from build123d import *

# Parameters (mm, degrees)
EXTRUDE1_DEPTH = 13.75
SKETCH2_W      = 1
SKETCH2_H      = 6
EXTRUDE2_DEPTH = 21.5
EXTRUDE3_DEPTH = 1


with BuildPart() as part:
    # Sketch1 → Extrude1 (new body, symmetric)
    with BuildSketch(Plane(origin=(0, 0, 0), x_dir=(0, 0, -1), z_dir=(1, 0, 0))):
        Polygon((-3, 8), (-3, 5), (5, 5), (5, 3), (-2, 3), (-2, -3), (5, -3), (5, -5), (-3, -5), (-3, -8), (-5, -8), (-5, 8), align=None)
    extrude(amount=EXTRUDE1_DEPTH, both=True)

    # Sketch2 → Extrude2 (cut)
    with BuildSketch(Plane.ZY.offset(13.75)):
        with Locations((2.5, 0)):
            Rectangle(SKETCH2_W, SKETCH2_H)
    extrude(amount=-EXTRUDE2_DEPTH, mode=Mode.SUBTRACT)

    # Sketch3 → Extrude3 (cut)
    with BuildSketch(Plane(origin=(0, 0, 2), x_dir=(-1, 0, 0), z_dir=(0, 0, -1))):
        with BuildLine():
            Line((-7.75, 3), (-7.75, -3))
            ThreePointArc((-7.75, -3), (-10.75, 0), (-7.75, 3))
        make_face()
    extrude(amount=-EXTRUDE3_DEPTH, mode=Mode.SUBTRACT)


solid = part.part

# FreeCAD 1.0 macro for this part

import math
import FreeCAD as App
import Part
import Sketcher

V = App.Vector

doc = App.newDocument("Part")
body = doc.addObject("PartDesign::Body", "Body")

# Sketch on YZ plane
sketch1 = body.newObject("Sketcher::SketchObject", "Sketch")
sketch1.AttachmentSupport = (doc.getObject("YZ_Plane"), [""])
sketch1.MapMode = "FlatFace"
sketch1.addGeometry([
    Part.LineSegment(V(5, 3, 0), V(8, 3, 0)),  # 0
    Part.LineSegment(V(8, 3, 0), V(8, 5, 0)),  # 1
    Part.LineSegment(V(8, 5, 0), V(-8, 5, 0)),  # 2
    Part.LineSegment(V(-8, 5, 0), V(-8, 3, 0)),  # 3
    Part.LineSegment(V(-8, 3, 0), V(-5, 3, 0)),  # 4
    Part.LineSegment(V(-5, 3, 0), V(-5, -5, 0)),  # 5
    Part.LineSegment(V(-5, -5, 0), V(-3, -5, 0)),  # 6
    Part.LineSegment(V(-3, -5, 0), V(-3, 2, 0)),  # 7
    Part.LineSegment(V(-3, 2, 0), V(3, 2, 0)),  # 8
    Part.LineSegment(V(3, 2, 0), V(3, -5, 0)),  # 9
    Part.LineSegment(V(3, -5, 0), V(5, -5, 0)),  # 10
    Part.LineSegment(V(5, -5, 0), V(5, 3, 0)),  # 11
], False)
sketch1.addConstraint([
    Sketcher.Constraint("Coincident", 0, 2, 1, 1),
    Sketcher.Constraint("Coincident", 1, 2, 2, 1),
    Sketcher.Constraint("Coincident", 2, 2, 3, 1),
    Sketcher.Constraint("Coincident", 3, 2, 4, 1),
    Sketcher.Constraint("Coincident", 4, 2, 5, 1),
    Sketcher.Constraint("Coincident", 5, 2, 6, 1),
    Sketcher.Constraint("Coincident", 6, 2, 7, 1),
    Sketcher.Constraint("Coincident", 7, 2, 8, 1),
    Sketcher.Constraint("Coincident", 8, 2, 9, 1),
    Sketcher.Constraint("Coincident", 9, 2, 10, 1),
    Sketcher.Constraint("Coincident", 10, 2, 11, 1),
    Sketcher.Constraint("Coincident", 11, 2, 0, 1),
    Sketcher.Constraint("Horizontal", 0),
    Sketcher.Constraint("Vertical", 1),
    Sketcher.Constraint("Horizontal", 2),
    Sketcher.Constraint("Vertical", 3),
    Sketcher.Constraint("Horizontal", 4),
    Sketcher.Constraint("Vertical", 5),
    Sketcher.Constraint("Horizontal", 6),
    Sketcher.Constraint("Vertical", 7),
    Sketcher.Constraint("Horizontal", 8),
    Sketcher.Constraint("Vertical", 9),
    Sketcher.Constraint("Horizontal", 10),
    Sketcher.Constraint("Vertical", 11),
    Sketcher.Constraint("Symmetric", 0, 2, 3, 2, -2),
    Sketcher.Constraint("Symmetric", 6, 2, 9, 2, -2),
    Sketcher.Constraint("Equal", 0, 4),
    Sketcher.Constraint("Equal", 10, 1),
    Sketcher.Constraint("DistanceX", 0, 1, 0, 2, 3.0),
    Sketcher.Constraint("DistanceX", 2, 2, 2, 1, 16.0),
    Sketcher.Constraint("DistanceX", 6, 1, 6, 2, 2.0),
    Sketcher.Constraint("DistanceY", 5, 2, 5, 1, 8.0),
    Sketcher.Constraint("DistanceY", 7, 1, 7, 2, 7.0),
    Sketcher.Constraint("DistanceY", -1, 1, 0, 2, 3.0),
])
pad1 = body.newObject("PartDesign::Pad", "Pad")
pad1.Profile = sketch1
pad1.Length = 27.5
pad1.Midplane = True

# Sketch on YZ plane
sketch2 = body.newObject("Sketcher::SketchObject", "Sketch001")
sketch2.AttachmentSupport = (doc.getObject("YZ_Plane"), [""])
sketch2.MapMode = "FlatFace"
sketch2.AttachmentOffset = App.Placement(V(0, 0, -13.75), App.Rotation())
sketch2.addGeometry([
    Part.LineSegment(V(3, 2, 0), V(-3, 2, 0)),
    Part.LineSegment(V(-3, 2, 0), V(-3, 3, 0)),
    Part.LineSegment(V(-3, 3, 0), V(3, 3, 0)),
    Part.LineSegment(V(3, 3, 0), V(3, 2, 0)),
], False)
sketch2.addConstraint([
    Sketcher.Constraint("Coincident", 0, 2, 1, 1),
    Sketcher.Constraint("Coincident", 1, 2, 2, 1),
    Sketcher.Constraint("Coincident", 2, 2, 3, 1),
    Sketcher.Constraint("Coincident", 3, 2, 0, 1),
    Sketcher.Constraint("Horizontal", 0),
    Sketcher.Constraint("Vertical", 1),
    Sketcher.Constraint("Horizontal", 2),
    Sketcher.Constraint("Vertical", 3),
    Sketcher.Constraint("DistanceX", 0, 2, 0, 1, 6.0),
    Sketcher.Constraint("DistanceY", 1, 1, 1, 2, 1.0),
    Sketcher.Constraint("DistanceX", 0, 2, -1, 1, 3.0),
    Sketcher.Constraint("DistanceY", -1, 1, 0, 2, 2.0),
])
pocket1 = body.newObject("PartDesign::Pocket", "Pocket")
pocket1.Profile = sketch2
pocket1.Length = 21.5
pocket1.Reversed = True

# Sketch on XY plane
sketch3 = body.newObject("Sketcher::SketchObject", "Sketch002")
sketch3.AttachmentSupport = (doc.getObject("XY_Plane"), [""])
sketch3.MapMode = "FlatFace"
sketch3.AttachmentOffset = App.Placement(V(0, 0, 2), App.Rotation())
sketch3.addGeometry([
    Part.LineSegment(V(7.8, -3, 0), V(7.8, 3, 0)),
    Part.ArcOfCircle(Part.Circle(V(7.8, 0, 0), V(0, 0, 1), 3), math.radians(-90), math.radians(90)),
], False)
sketch3.addConstraint([
    Sketcher.Constraint("Coincident", 0, 1, 1, 1),
    Sketcher.Constraint("Coincident", 1, 2, 0, 2),
    Sketcher.Constraint("Vertical", 0),
    Sketcher.Constraint("PointOnObject", 1, 3, -1),
    Sketcher.Constraint("Vertical", 1, 3, 0, 1),
    Sketcher.Constraint("Radius", 1, 3.0),
    Sketcher.Constraint("DistanceX", -1, 1, 1, 3, 7.75),
])
pocket2 = body.newObject("PartDesign::Pocket", "Pocket001")
pocket2.Profile = sketch3
pocket2.Length = 1
pocket2.Reversed = True

doc.recompute()
